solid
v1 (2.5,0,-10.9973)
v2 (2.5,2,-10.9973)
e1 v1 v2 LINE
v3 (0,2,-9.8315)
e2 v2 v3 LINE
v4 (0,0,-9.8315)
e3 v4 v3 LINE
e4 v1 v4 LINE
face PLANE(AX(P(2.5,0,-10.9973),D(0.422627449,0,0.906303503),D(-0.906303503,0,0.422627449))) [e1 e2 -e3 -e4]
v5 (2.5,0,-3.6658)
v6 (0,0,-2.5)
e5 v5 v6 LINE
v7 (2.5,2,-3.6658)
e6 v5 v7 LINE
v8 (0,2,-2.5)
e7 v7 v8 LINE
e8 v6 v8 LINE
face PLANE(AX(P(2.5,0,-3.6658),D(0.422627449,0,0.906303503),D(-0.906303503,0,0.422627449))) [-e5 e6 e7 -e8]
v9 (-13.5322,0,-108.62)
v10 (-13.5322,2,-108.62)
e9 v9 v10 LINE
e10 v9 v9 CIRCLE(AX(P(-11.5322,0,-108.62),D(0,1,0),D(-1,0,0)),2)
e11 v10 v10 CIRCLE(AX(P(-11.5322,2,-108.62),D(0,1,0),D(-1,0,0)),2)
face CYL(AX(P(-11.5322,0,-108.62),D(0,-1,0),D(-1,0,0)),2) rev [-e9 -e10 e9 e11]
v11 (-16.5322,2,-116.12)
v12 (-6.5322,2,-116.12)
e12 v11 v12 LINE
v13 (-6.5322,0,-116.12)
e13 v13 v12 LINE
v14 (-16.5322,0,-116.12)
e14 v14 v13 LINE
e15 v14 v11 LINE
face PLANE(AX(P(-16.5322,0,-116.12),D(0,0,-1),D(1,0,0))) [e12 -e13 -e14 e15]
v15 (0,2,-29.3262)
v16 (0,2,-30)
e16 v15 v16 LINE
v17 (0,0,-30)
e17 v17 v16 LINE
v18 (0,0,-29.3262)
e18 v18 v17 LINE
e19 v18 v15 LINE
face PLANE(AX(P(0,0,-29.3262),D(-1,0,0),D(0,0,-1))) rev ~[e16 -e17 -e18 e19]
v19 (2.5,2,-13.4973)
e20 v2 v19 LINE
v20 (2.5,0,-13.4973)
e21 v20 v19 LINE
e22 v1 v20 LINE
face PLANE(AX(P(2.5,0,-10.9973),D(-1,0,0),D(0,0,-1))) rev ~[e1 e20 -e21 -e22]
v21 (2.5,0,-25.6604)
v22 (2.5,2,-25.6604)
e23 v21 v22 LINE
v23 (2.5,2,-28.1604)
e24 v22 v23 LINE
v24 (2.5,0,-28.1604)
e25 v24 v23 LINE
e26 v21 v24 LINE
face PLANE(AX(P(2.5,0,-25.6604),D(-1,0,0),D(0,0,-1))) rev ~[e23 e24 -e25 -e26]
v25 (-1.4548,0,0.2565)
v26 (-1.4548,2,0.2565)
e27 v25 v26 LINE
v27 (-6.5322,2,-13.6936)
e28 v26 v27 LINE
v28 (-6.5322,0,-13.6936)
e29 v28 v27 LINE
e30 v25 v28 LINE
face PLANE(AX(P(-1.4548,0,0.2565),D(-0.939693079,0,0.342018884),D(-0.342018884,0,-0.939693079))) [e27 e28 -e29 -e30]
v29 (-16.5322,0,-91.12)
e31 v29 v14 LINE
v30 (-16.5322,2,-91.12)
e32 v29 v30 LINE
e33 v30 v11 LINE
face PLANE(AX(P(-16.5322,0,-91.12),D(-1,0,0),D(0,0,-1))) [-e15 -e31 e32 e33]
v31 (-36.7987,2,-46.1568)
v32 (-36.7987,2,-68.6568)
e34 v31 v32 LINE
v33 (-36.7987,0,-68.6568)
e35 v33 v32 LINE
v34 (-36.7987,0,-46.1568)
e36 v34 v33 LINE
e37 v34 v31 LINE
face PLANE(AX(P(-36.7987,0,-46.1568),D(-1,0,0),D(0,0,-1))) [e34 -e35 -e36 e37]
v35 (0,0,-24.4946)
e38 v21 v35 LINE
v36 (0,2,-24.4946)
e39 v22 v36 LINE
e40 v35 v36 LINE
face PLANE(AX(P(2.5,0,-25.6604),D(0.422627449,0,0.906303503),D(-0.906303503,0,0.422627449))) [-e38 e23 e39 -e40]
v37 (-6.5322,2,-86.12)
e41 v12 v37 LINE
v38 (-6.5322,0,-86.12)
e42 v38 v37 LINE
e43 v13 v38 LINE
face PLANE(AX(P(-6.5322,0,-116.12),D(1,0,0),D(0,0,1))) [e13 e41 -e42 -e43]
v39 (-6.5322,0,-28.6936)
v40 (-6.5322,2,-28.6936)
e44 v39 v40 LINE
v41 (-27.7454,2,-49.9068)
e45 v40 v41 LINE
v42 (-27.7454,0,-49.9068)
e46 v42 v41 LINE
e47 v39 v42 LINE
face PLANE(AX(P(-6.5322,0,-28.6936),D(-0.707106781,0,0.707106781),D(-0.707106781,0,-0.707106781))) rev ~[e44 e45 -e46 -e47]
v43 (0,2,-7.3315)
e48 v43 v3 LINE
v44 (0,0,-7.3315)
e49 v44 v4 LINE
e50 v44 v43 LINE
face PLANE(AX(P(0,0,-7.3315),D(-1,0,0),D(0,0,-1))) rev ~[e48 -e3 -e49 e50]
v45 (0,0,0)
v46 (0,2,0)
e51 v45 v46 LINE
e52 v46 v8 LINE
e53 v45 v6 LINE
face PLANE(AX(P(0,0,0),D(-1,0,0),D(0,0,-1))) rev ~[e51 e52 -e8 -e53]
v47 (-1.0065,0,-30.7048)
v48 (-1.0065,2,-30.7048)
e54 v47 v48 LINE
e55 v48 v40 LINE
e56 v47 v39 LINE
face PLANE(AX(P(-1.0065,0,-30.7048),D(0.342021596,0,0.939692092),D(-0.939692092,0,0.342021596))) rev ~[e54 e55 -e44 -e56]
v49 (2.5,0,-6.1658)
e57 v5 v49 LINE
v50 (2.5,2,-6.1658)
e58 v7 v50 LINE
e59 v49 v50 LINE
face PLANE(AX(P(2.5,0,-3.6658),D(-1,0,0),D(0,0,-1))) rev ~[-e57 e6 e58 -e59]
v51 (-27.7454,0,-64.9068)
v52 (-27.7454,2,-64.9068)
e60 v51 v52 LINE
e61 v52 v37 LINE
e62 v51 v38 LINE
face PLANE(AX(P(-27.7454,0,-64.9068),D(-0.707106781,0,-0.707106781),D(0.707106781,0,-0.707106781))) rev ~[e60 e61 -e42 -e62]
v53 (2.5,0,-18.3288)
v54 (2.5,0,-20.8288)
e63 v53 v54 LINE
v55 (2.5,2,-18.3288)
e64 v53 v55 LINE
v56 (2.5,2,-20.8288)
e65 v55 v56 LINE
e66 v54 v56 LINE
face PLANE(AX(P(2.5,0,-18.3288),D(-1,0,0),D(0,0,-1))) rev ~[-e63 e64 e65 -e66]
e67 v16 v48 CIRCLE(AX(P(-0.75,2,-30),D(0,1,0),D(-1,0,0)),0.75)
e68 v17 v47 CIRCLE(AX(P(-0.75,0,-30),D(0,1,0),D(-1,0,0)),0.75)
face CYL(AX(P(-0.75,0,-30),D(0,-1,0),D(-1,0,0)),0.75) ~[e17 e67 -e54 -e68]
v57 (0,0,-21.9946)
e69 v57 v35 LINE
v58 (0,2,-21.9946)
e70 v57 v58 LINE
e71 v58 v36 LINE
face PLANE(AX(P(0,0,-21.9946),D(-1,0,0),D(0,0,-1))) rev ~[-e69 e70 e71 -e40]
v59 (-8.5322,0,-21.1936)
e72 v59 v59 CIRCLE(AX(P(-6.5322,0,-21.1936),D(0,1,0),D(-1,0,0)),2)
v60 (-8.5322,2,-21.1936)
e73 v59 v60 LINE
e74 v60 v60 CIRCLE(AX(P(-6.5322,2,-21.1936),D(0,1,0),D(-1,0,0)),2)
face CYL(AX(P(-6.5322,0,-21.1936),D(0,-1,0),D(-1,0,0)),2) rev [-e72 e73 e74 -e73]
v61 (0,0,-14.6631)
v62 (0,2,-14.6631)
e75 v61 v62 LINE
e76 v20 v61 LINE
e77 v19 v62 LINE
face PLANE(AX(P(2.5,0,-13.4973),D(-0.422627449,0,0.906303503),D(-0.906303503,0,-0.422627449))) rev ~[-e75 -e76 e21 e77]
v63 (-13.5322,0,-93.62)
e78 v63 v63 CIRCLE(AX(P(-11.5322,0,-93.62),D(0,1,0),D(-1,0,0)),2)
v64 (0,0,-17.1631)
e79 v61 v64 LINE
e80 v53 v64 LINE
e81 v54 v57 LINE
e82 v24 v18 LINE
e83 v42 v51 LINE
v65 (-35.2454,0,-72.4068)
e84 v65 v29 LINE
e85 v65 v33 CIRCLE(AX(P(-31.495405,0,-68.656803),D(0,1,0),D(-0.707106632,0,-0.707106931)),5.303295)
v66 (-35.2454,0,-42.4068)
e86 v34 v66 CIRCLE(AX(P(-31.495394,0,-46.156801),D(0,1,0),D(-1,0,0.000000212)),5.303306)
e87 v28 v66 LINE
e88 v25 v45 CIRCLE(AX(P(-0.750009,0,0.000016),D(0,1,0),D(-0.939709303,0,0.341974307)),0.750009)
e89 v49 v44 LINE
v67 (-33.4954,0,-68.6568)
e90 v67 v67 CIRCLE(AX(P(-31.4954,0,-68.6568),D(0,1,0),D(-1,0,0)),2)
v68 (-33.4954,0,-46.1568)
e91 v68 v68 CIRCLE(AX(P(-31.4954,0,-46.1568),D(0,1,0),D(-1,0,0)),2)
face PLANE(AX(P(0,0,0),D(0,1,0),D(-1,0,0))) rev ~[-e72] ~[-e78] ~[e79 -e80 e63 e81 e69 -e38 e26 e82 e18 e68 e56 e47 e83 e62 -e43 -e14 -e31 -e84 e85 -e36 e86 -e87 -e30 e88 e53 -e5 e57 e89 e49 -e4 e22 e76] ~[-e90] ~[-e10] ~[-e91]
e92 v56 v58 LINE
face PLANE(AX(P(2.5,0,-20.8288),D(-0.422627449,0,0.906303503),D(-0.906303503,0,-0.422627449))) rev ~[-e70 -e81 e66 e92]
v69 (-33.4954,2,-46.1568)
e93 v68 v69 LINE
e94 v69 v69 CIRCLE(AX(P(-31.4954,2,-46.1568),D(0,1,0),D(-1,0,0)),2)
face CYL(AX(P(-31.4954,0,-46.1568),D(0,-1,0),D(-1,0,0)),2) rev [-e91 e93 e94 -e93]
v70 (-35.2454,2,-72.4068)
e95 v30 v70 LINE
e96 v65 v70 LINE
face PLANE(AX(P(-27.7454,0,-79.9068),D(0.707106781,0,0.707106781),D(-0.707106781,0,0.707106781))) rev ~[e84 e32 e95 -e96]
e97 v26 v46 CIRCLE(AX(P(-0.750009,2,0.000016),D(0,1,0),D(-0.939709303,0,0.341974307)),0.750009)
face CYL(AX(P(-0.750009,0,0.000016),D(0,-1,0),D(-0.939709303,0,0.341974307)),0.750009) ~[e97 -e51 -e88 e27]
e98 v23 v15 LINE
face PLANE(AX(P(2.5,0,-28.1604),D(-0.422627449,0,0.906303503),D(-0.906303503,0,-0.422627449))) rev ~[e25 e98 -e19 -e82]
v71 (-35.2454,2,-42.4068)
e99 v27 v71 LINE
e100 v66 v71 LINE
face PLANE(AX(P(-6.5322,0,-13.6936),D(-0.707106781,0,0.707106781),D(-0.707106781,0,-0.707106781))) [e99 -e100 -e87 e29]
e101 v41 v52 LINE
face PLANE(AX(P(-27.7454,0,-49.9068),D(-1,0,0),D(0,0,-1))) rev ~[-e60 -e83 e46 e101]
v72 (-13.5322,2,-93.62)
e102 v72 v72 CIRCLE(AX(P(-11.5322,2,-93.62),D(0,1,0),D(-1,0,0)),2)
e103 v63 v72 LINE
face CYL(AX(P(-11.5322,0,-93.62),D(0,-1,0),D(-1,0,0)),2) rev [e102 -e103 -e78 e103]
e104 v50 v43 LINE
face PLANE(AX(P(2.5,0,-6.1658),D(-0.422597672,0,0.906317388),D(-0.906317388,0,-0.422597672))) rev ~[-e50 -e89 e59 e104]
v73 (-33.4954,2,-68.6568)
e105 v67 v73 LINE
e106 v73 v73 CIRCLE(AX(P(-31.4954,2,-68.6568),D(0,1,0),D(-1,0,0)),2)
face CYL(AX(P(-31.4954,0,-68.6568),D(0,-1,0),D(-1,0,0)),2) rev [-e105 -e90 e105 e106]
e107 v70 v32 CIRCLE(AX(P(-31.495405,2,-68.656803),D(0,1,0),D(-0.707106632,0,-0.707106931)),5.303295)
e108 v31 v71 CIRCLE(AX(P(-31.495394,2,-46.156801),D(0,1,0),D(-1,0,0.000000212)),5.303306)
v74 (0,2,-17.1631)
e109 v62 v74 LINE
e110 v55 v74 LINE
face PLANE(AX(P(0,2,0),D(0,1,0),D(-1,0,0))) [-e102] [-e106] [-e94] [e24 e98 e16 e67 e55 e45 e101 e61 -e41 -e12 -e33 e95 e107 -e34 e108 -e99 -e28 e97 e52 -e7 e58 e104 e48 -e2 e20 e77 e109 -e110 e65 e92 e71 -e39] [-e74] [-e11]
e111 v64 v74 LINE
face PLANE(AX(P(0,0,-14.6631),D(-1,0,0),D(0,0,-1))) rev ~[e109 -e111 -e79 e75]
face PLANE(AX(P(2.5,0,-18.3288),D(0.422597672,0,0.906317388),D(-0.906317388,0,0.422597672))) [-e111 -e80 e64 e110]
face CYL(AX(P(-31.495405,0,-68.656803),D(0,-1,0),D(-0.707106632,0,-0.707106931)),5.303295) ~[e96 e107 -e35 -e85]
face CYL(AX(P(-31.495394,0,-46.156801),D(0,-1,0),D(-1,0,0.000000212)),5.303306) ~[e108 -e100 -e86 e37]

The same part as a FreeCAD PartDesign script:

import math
import FreeCAD as App
import Part
import Sketcher
Q = App.Units.Quantity

doc = App.newDocument("Part")
body = doc.addObject("PartDesign::Body", "Body")

sketch1 = doc.addObject("Sketcher::SketchObject", "Sketch")
body.addObject(sketch1)
sketch1.AttachmentSupport = (doc.XZ_Plane, [""])
sketch1.MapMode = "FlatFace"
sketch1.addGeometry([
    Part.ArcOfCircle(Part.Circle(App.Vector(-0.8, 0, 0), App.Vector(0, 0, 1), 0.8), math.radians(0), math.radians(160)),
    Part.LineSegment(App.Vector(0, 0, 0), App.Vector(0, -2.5, 0)),
    Part.LineSegment(App.Vector(0, -2.5, 0), App.Vector(2.5, -3.7, 0)),
    Part.LineSegment(App.Vector(2.5, -3.7, 0), App.Vector(2.5, -6.2, 0)),
    Part.LineSegment(App.Vector(2.5, -6.2, 0), App.Vector(0, -7.3, 0)),
    Part.LineSegment(App.Vector(0, -7.3, 0), App.Vector(0, -9.8, 0)),
    Part.LineSegment(App.Vector(0, -9.8, 0), App.Vector(2.5, -11, 0)),
    Part.LineSegment(App.Vector(2.5, -11, 0), App.Vector(2.5, -13.5, 0)),
    Part.LineSegment(App.Vector(2.5, -13.5, 0), App.Vector(0, -14.7, 0)),
    Part.LineSegment(App.Vector(0, -14.7, 0), App.Vector(0, -17.2, 0)),
    Part.LineSegment(App.Vector(0, -17.2, 0), App.Vector(2.5, -18.3, 0)),
    Part.LineSegment(App.Vector(2.5, -18.3, 0), App.Vector(2.5, -20.8, 0)),
    Part.LineSegment(App.Vector(2.5, -20.8, 0), App.Vector(0, -22, 0)),
    Part.LineSegment(App.Vector(0, -22, 0), App.Vector(0, -24.5, 0)),
    Part.LineSegment(App.Vector(0, -24.5, 0), App.Vector(2.5, -25.7, 0)),
    Part.LineSegment(App.Vector(2.5, -25.7, 0), App.Vector(2.5, -28.2, 0)),
    Part.LineSegment(App.Vector(2.5, -28.2, 0), App.Vector(0, -29.3, 0)),
    Part.LineSegment(App.Vector(0, -29.3, 0), App.Vector(0, -30, 0)),
    Part.ArcOfCircle(Part.Circle(App.Vector(-0.8, -30, 0), App.Vector(0, 0, 1), 0.8), math.radians(-110), math.radians(0)),
    Part.LineSegment(App.Vector(-1, -30.7, 0), App.Vector(-6.5, -28.7, 0)),
    Part.LineSegment(App.Vector(-6.5, -28.7, 0), App.Vector(-27.7, -49.9, 0)),
    Part.LineSegment(App.Vector(-27.7, -49.9, 0), App.Vector(-27.7, -64.9, 0)),
    Part.LineSegment(App.Vector(-27.7, -64.9, 0), App.Vector(-6.5, -86.1, 0)),
    Part.LineSegment(App.Vector(-6.5, -86.1, 0), App.Vector(-6.5, -116.1, 0)),
    Part.LineSegment(App.Vector(-6.5, -116.1, 0), App.Vector(-16.5, -116.1, 0)),
    Part.LineSegment(App.Vector(-16.5, -116.1, 0), App.Vector(-16.5, -91.1, 0)),
    Part.LineSegment(App.Vector(-16.5, -91.1, 0), App.Vector(-35.2, -72.4, 0)),
    Part.ArcOfCircle(Part.Circle(App.Vector(-31.5, -68.7, 0), App.Vector(0, 0, 1), 5.3), math.radians(180), math.radians(225)),
    Part.LineSegment(App.Vector(-36.8, -68.7, 0), App.Vector(-36.8, -46.2, 0)),
    Part.ArcOfCircle(Part.Circle(App.Vector(-31.5, -46.2, 0), App.Vector(0, 0, 1), 5.3), math.radians(135), math.radians(180)),
    Part.LineSegment(App.Vector(-35.2, -42.4, 0), App.Vector(-6.5, -13.7, 0)),
    Part.LineSegment(App.Vector(-6.5, -13.7, 0), App.Vector(-1.5, 0.3, 0)),
    Part.Circle(App.Vector(-11.5, -108.6, 0), App.Vector(0, 0, 1), 2),
    Part.Circle(App.Vector(-11.5, -93.6, 0), App.Vector(0, 0, 1), 2),
    Part.Circle(App.Vector(-31.5, -68.7, 0), App.Vector(0, 0, 1), 2),
    Part.Circle(App.Vector(-6.5, -21.2, 0), App.Vector(0, 0, 1), 2),
    Part.Circle(App.Vector(-31.5, -46.2, 0), App.Vector(0, 0, 1), 2),
], False)
sketch1.addConstraint([
    Sketcher.Constraint("Tangent", 0, 1, 1, 1),
    Sketcher.Constraint("Coincident", 1, 2, 2, 1),
    Sketcher.Constraint("Coincident", 2, 2, 3, 1),
    Sketcher.Constraint("Coincident", 3, 2, 4, 1),
    Sketcher.Constraint("Coincident", 4, 2, 5, 1),
    Sketcher.Constraint("Coincident", 5, 2, 6, 1),
    Sketcher.Constraint("Coincident", 6, 2, 7, 1),
    Sketcher.Constraint("Coincident", 7, 2, 8, 1),
    Sketcher.Constraint("Coincident", 8, 2, 9, 1),
    Sketcher.Constraint("Coincident", 9, 2, 10, 1),
    Sketcher.Constraint("Coincident", 10, 2, 11, 1),
    Sketcher.Constraint("Coincident", 11, 2, 12, 1),
    Sketcher.Constraint("Coincident", 12, 2, 13, 1),
    Sketcher.Constraint("Coincident", 13, 2, 14, 1),
    Sketcher.Constraint("Coincident", 14, 2, 15, 1),
    Sketcher.Constraint("Coincident", 15, 2, 16, 1),
    Sketcher.Constraint("Coincident", 16, 2, 17, 1),
    Sketcher.Constraint("Tangent", 17, 2, 18, 2),
    Sketcher.Constraint("Tangent", 18, 1, 19, 1),
    Sketcher.Constraint("Coincident", 19, 2, 20, 1),
    Sketcher.Constraint("Coincident", 20, 2, 21, 1),
    Sketcher.Constraint("Coincident", 21, 2, 22, 1),
    Sketcher.Constraint("Coincident", 22, 2, 23, 1),
    Sketcher.Constraint("Coincident", 23, 2, 24, 1),
    Sketcher.Constraint("Coincident", 24, 2, 25, 1),
    Sketcher.Constraint("Coincident", 25, 2, 26, 1),
    Sketcher.Constraint("Tangent", 26, 2, 27, 2),
    Sketcher.Constraint("Tangent", 27, 1, 28, 1),
    Sketcher.Constraint("Tangent", 28, 2, 29, 2),
    Sketcher.Constraint("Tangent", 29, 1, 30, 1),
    Sketcher.Constraint("Coincident", 30, 2, 31, 1),
    Sketcher.Constraint("Tangent", 31, 2, 0, 2),
    Sketcher.Constraint("Vertical", 1),
    Sketcher.Constraint("Vertical", 3),
    Sketcher.Constraint("Vertical", 5),
    Sketcher.Constraint("Vertical", 7),
    Sketcher.Constraint("Vertical", 9),
    Sketcher.Constraint("Vertical", 11),
    Sketcher.Constraint("Vertical", 13),
    Sketcher.Constraint("Vertical", 15),
    Sketcher.Constraint("Vertical", 17),
    Sketcher.Constraint("Vertical", 21),
    Sketcher.Constraint("Vertical", 23),
    Sketcher.Constraint("Horizontal", 24),
    Sketcher.Constraint("Vertical", 25),
    Sketcher.Constraint("Vertical", 28),
    Sketcher.Constraint("Coincident", 0, 1, -1, 1),
    Sketcher.Constraint("Coincident", 34, 3, 27, 3),
    Sketcher.Constraint("Coincident", 36, 3, 29, 3),
    Sketcher.Constraint("Equal", 0, 18),
    Sketcher.Constraint("Equal", 27, 29),
    Sketcher.Constraint("Equal", 32, 33),
    Sketcher.Constraint("Equal", 33, 34),
    Sketcher.Constraint("Equal", 34, 35),
    Sketcher.Constraint("Equal", 35, 36),
    Sketcher.Constraint("PointOnObject", 4, 2, -2),
    Sketcher.Constraint("PointOnObject", 8, 2, -2),
    Sketcher.Constraint("PointOnObject", 12, 2, -2),
    Sketcher.Constraint("PointOnObject", 16, 2, -2),
    Sketcher.Constraint("Parallel", 2, 6),
    Sketcher.Constraint("Parallel", 4, 8),
    Sketcher.Constraint("Parallel", 6, 10),
    Sketcher.Constraint("Parallel", 8, 12),
    Sketcher.Constraint("Parallel", 10, 14),
    Sketcher.Constraint("Parallel", 12, 16),
    Sketcher.Constraint("Perpendicular", 20, 22),
    Sketcher.Constraint("Parallel", 22, 26),
    Sketcher.Constraint("Perpendicular", 26, 30),
    Sketcher.Constraint("Perpendicular", 19, 31),
    Sketcher.Constraint("Vertical", 32, 3, 33, 3),
    Sketcher.Constraint("Vertical", 3, 2, 6, 2),
    Sketcher.Constraint("Vertical", 7, 2, 10, 2),
    Sketcher.Constraint("Vertical", 11, 2, 14, 2),
    Sketcher.Constraint("Vertical", 35, 3, 19, 2),
    Sketcher.Constraint("Vertical", 19, 2, 22, 2),
    Sketcher.Constraint("Vertical", 26, 2, 29, 1),
    Sketcher.Constraint("Vertical", 23, 2, 30, 2),
    Sketcher.Constraint("Equal", 1, 3),
    Sketcher.Constraint("Equal", 3, 5),
    Sketcher.Constraint("Equal", 5, 7),
    Sketcher.Constraint("Equal", 7, 9),
    Sketcher.Constraint("Equal", 9, 11),
    Sketcher.Constraint("Equal", 11, 13),
    Sketcher.Constraint("Equal", 13, 15),
    Sketcher.Constraint("Equal", 2, 4),
    Sketcher.Constraint("Diameter", 32, Q("4 mm")),
    Sketcher.Constraint("DistanceX", 24, 2, 24, 1, Q("10 mm")),
    Sketcher.Constraint("DistanceY", 21, 2, 21, 1, Q("15 mm")),
    Sketcher.Constraint("DistanceY", 23, 2, 23, 1, Q("30 mm")),
    Sketcher.Constraint("DistanceY", 25, 1, 25, 2, Q("25 mm")),
    Sketcher.Constraint("Angle", 2, Q("-25.0006 deg")),
    Sketcher.Constraint("Angle", 31, Q("70 deg")),
    Sketcher.Constraint("Radius", 0, Q("0.75 mm")),
    Sketcher.Constraint("Distance", 20, Q("30 mm")),
    Sketcher.Constraint("DistanceY", 1, 2, 1, 1, Q("2.5 mm")),
    Sketcher.Constraint("DistanceY", 18, 3, -1, 1, Q("30 mm")),
    Sketcher.Constraint("DistanceY", 32, 3, 33, 3, Q("15 mm")),
    Sketcher.Constraint("DistanceX", 33, 3, 22, 2, Q("5 mm")),
    Sketcher.Constraint("DistanceX", -1, 1, 2, 2, Q("2.5 mm")),
    Sketcher.Constraint("DistanceY", 19, 2, 35, 3, Q("7.5 mm")),
    Sketcher.Constraint("DistanceY", 33, 3, 22, 2, Q("7.5 mm")),
    Sketcher.Constraint("DistanceX", 26, 2, 21, 2, Q("7.5 mm")),
    Sketcher.Constraint("DistanceY", 20, 2, 29, 1, Q("7.5 mm")),
    Sketcher.Constraint("DistanceY", 28, 1, 28, 2, Q("22.5 mm")),
])
pad1 = doc.addObject("PartDesign::Pad", "Pad")
body.addObject(pad1)
pad1.Profile = sketch1
pad1.Length = 2
pad1.Reversed = True

doc.recompute()
